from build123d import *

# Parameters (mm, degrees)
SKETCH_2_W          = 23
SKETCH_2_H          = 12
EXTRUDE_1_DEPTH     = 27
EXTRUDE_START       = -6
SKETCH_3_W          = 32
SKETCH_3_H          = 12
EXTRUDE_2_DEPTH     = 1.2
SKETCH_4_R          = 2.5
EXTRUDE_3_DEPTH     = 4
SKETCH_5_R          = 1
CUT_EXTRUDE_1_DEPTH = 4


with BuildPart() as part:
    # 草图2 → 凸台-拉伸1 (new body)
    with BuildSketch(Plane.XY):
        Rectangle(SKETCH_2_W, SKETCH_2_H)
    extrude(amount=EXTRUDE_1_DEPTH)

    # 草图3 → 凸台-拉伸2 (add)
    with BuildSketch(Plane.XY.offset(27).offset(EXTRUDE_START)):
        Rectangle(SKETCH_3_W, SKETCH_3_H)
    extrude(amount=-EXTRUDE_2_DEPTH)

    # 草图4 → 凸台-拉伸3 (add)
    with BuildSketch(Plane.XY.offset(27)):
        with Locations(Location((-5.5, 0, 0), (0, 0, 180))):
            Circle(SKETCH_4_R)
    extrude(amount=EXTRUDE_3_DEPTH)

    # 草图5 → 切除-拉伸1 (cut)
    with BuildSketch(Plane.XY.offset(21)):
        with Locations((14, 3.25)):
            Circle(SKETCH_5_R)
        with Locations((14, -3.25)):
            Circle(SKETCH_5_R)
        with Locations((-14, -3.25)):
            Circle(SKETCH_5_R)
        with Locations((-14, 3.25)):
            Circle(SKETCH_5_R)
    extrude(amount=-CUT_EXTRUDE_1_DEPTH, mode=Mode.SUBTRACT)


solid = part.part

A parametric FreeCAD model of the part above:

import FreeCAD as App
import Part
import Sketcher

V = App.Vector

doc = App.newDocument("Part")
body = doc.addObject("PartDesign::Body", "Body")

# Sketch on XY plane
sketch1 = body.newObject("Sketcher::SketchObject", "Sketch")
sketch1.AttachmentSupport = (doc.getObject("XY_Plane"), [""])
sketch1.MapMode = "FlatFace"
sketch1.addGeometry(Part.LineSegment(V(-12, 6, 0), V(-12, -6, 0)), False)
sketch1.addGeometry(Part.LineSegment(V(-12, -6, 0), V(12, -6, 0)), False)
sketch1.addGeometry(Part.LineSegment(V(12, -6, 0), V(12, 6, 0)), False)
sketch1.addGeometry(Part.LineSegment(V(12, 6, 0), V(-12, 6, 0)), False)
sketch1.addConstraint(Sketcher.Constraint("Coincident", 0, 2, 1, 1))
sketch1.addConstraint(Sketcher.Constraint("Coincident", 1, 2, 2, 1))
sketch1.addConstraint(Sketcher.Constraint("Coincident", 2, 2, 3, 1))
sketch1.addConstraint(Sketcher.Constraint("Coincident", 3, 2, 0, 1))
sketch1.addConstraint(Sketcher.Constraint("Vertical", 0))
sketch1.addConstraint(Sketcher.Constraint("Horizontal", 1))
sketch1.addConstraint(Sketcher.Constraint("Vertical", 2))
sketch1.addConstraint(Sketcher.Constraint("Horizontal", 3))
sketch1.addConstraint(Sketcher.Constraint("Symmetric", 0, 2, 2, 2, -1, 1))
sketch1.addConstraint(Sketcher.Constraint("DistanceX", 1, 1, 1, 2, 23.0))
sketch1.addConstraint(Sketcher.Constraint("DistanceY", 0, 2, 0, 1, 12.0))
pad1 = body.newObject("PartDesign::Pad", "Pad")
pad1.Profile = sketch1
pad1.Length = 27

# Sketch on XY plane
sketch2 = body.newObject("Sketcher::SketchObject", "Sketch001")
sketch2.AttachmentSupport = (doc.getObject("XY_Plane"), [""])
sketch2.MapMode = "FlatFace"
sketch2.AttachmentOffset = App.Placement(V(0, 0, 21), App.Rotation())
sketch2.addGeometry(Part.LineSegment(V(-16, 6, 0), V(-16, -6, 0)), False)
sketch2.addGeometry(Part.LineSegment(V(-16, -6, 0), V(16, -6, 0)), False)
sketch2.addGeometry(Part.LineSegment(V(16, -6, 0), V(16, 6, 0)), False)
sketch2.addGeometry(Part.LineSegment(V(16, 6, 0), V(-16, 6, 0)), False)
sketch2.addConstraint(Sketcher.Constraint("Coincident", 0, 2, 1, 1))
sketch2.addConstraint(Sketcher.Constraint("Coincident", 1, 2, 2, 1))
sketch2.addConstraint(Sketcher.Constraint("Coincident", 2, 2, 3, 1))
sketch2.addConstraint(Sketcher.Constraint("Coincident", 3, 2, 0, 1))
sketch2.addConstraint(Sketcher.Constraint("Vertical", 0))
sketch2.addConstraint(Sketcher.Constraint("Horizontal", 1))
sketch2.addConstraint(Sketcher.Constraint("Vertical", 2))
sketch2.addConstraint(Sketcher.Constraint("Horizontal", 3))
sketch2.addConstraint(Sketcher.Constraint("Symmetric", 0, 2, 2, 2, -1, 1))
sketch2.addConstraint(Sketcher.Constraint("DistanceX", 1, 1, 1, 2, 32.0))
sketch2.addConstraint(Sketcher.Constraint("DistanceY", 0, 2, 0, 1, 12.0))
pad2 = body.newObject("PartDesign::Pad", "Pad001")
pad2.Profile = sketch2
pad2.Length = 1.2
pad2.Reversed = True

# Sketch on XY plane
sketch3 = body.newObject("Sketcher::SketchObject", "Sketch002")
sketch3.AttachmentSupport = (doc.getObject("XY_Plane"), [""])
sketch3.MapMode = "FlatFace"
sketch3.AttachmentOffset = App.Placement(V(0, 0, 27), App.Rotation())
sketch3.addGeometry(Part.Circle(V(-5.5, 0, 0), V(0, 0, 1), 2.5), False)
sketch3.addConstraint(Sketcher.Constraint("PointOnObject", 0, 3, -1))
sketch3.addConstraint(Sketcher.Constraint("Diameter", 0, 5.0))
sketch3.addConstraint(Sketcher.Constraint("DistanceX", 0, 3, -1, 1, 5.5))
pad3 = body.newObject("PartDesign::Pad", "Pad002")
pad3.Profile = sketch3
pad3.Length = 4

# Sketch on XY plane
sketch4 = body.newObject("Sketcher::SketchObject", "Sketch003")
sketch4.AttachmentSupport = (doc.getObject("XY_Plane"), [""])
sketch4.MapMode = "FlatFace"
sketch4.AttachmentOffset = App.Placement(V(0, 0, 21), App.Rotation())
sketch4.addGeometry(Part.Circle(V(14, 3.2, 0), V(0, 0, 1), 1), False)
sketch4.addGeometry(Part.Circle(V(14, -3.2, 0), V(0, 0, 1), 1), False)
sketch4.addGeometry(Part.Circle(V(-14, -3.2, 0), V(0, 0, 1), 1), False)
sketch4.addGeometry(Part.Circle(V(-14, 3.2, 0), V(0, 0, 1), 1), False)
sketch4.addConstraint(Sketcher.Constraint("Equal", 0, 1))
sketch4.addConstraint(Sketcher.Constraint("Equal", 1, 2))
sketch4.addConstraint(Sketcher.Constraint("Equal", 2, 3))
sketch4.addConstraint(Sketcher.Constraint("Symmetric", 0, 3, 2, 3, -1, 1))
sketch4.addConstraint(Sketcher.Constraint("Symmetric", 1, 3, 3, 3, -1, 1))
sketch4.addConstraint(Sketcher.Constraint("Symmetric", 1, 3, 2, 3, -2))
sketch4.addConstraint(Sketcher.Constraint("Diameter", 0, 2.0))
sketch4.addConstraint(Sketcher.Constraint("DistanceX", -1, 1, 0, 3, 14.0))
sketch4.addConstraint(Sketcher.Constraint("DistanceY", 1, 3, 0, 3, 6.5))
pocket1 = body.newObject("PartDesign::Pocket", "Pocket")
pocket1.Profile = sketch4
pocket1.Length = 4

doc.recompute()
